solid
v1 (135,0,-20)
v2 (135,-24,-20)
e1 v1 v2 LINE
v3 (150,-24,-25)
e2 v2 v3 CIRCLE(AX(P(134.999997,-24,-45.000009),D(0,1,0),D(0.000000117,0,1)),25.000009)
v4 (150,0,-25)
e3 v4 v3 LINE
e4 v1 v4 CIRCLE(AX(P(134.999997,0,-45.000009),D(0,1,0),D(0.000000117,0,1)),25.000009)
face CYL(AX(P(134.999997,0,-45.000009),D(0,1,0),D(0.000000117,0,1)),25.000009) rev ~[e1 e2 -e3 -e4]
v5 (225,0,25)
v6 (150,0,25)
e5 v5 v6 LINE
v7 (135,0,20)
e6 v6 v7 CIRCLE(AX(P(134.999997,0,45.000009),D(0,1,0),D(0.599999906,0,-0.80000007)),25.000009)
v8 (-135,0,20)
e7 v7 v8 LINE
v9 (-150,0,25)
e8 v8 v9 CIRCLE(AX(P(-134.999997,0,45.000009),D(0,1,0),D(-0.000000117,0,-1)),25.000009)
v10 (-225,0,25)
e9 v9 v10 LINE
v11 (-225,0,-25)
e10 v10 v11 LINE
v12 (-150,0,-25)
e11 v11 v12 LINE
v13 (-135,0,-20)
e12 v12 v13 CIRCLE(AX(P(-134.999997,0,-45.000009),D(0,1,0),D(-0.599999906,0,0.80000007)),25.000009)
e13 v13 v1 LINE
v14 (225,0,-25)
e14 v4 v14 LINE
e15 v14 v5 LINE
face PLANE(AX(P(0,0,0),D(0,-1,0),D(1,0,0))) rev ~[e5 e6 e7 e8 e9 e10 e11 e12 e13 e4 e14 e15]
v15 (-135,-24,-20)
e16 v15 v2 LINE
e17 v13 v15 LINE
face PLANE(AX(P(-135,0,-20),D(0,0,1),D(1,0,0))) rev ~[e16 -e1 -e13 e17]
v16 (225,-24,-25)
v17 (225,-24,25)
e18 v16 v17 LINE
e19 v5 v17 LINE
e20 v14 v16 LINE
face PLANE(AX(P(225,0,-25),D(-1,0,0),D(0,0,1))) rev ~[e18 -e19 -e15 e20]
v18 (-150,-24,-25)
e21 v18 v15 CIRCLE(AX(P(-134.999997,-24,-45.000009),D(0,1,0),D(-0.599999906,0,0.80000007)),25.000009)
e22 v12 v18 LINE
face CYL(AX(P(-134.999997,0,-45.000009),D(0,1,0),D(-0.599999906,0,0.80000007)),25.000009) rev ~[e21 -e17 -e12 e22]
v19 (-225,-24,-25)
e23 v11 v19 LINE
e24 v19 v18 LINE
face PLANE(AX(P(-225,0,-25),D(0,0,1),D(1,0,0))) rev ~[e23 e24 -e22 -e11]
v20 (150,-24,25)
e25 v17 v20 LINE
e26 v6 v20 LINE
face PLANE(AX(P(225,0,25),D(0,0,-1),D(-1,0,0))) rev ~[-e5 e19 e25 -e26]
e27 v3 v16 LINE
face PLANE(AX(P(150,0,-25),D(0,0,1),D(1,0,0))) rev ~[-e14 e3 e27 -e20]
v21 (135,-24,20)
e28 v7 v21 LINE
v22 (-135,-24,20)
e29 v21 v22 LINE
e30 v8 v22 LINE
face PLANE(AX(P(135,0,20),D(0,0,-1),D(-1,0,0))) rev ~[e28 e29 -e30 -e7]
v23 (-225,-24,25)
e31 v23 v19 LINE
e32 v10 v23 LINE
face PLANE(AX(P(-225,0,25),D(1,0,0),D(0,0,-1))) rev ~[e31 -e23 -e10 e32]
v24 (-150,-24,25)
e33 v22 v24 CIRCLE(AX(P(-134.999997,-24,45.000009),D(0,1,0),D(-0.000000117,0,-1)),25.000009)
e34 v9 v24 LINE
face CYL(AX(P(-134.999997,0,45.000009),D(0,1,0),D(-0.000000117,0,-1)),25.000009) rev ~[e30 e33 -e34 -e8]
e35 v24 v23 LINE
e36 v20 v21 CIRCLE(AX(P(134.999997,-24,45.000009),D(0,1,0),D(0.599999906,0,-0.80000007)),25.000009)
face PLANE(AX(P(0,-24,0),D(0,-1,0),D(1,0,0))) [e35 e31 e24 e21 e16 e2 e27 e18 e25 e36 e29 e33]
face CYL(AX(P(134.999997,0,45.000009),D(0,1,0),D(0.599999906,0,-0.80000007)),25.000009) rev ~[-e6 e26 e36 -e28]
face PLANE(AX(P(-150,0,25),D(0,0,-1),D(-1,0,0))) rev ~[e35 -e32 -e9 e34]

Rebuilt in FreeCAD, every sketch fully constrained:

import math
import FreeCAD as App
import Part
import Sketcher
from FreeCAD import Vector
Q = App.Units.Quantity

doc = App.newDocument("Part")
body = doc.addObject("PartDesign::Body", "Body")

sketch1 = body.newObject("Sketcher::SketchObject", "Sketch")
sketch1.AttachmentSupport = (doc.getObject("XZ_Plane"), [""])
sketch1.MapMode = "FlatFace"
sketch1.addGeometry([
    Part.LineSegment(Vector(135, 20, 0), Vector(-135, 20, 0)),
    Part.ArcOfCircle(Part.Circle(Vector(-135, 45, 0), Vector(0, 0, 1), 25), math.radians(-127), math.radians(-90)),
    Part.LineSegment(Vector(-150, 25, 0), Vector(-225, 25, 0)),
    Part.LineSegment(Vector(-225, 25, 0), Vector(-225, -25, 0)),
    Part.LineSegment(Vector(-225, -25, 0), Vector(-150, -25, 0)),
    Part.ArcOfCircle(Part.Circle(Vector(-135, -45, 0), Vector(0, 0, 1), 25), math.radians(90), math.radians(127)),
    Part.LineSegment(Vector(-135, -20, 0), Vector(135, -20, 0)),
    Part.ArcOfCircle(Part.Circle(Vector(135, -45, 0), Vector(0, 0, 1), 25), math.radians(53), math.radians(90)),
    Part.LineSegment(Vector(150, -25, 0), Vector(225, -25, 0)),
    Part.LineSegment(Vector(225, -25, 0), Vector(225, 25, 0)),
    Part.LineSegment(Vector(225, 25, 0), Vector(150, 25, 0)),
    Part.ArcOfCircle(Part.Circle(Vector(135, 45, 0), Vector(0, 0, 1), 25), math.radians(-90), math.radians(-53)),
], False)
sketch1.addConstraint([
    Sketcher.Constraint("Tangent", 0, 2, 1, 2),
    Sketcher.Constraint("Coincident", 1, 1, 2, 1),
    Sketcher.Constraint("Coincident", 2, 2, 3, 1),
    Sketcher.Constraint("Coincident", 3, 2, 4, 1),
    Sketcher.Constraint("Coincident", 4, 2, 5, 2),
    Sketcher.Constraint("Tangent", 5, 1, 6, 1),
    Sketcher.Constraint("Tangent", 6, 2, 7, 2),
    Sketcher.Constraint("Coincident", 7, 1, 8, 1),
    Sketcher.Constraint("Coincident", 8, 2, 9, 1),
    Sketcher.Constraint("Coincident", 9, 2, 10, 1),
    Sketcher.Constraint("Coincident", 10, 2, 11, 2),
    Sketcher.Constraint("Tangent", 11, 1, 0, 1),
    Sketcher.Constraint("Horizontal", 0),
    Sketcher.Constraint("Horizontal", 2),
    Sketcher.Constraint("Vertical", 3),
    Sketcher.Constraint("Horizontal", 4),
    Sketcher.Constraint("Horizontal", 6),
    Sketcher.Constraint("Horizontal", 8),
    Sketcher.Constraint("Vertical", 9),
    Sketcher.Constraint("Horizontal", 10),
    Sketcher.Constraint("Equal", 1, 5),
    Sketcher.Constraint("Equal", 5, 7),
    Sketcher.Constraint("Equal", 7, 11),
    Sketcher.Constraint("Symmetric", 1, 3, 7, 3, -1, 1),
    Sketcher.Constraint("Symmetric", 2, 2, 8, 2, -1, 1),
    Sketcher.Constraint("Symmetric", 4, 2, 10, 2, -1, 1),
    Sketcher.Constraint("Symmetric", 4, 2, 7, 1, -2),
    Sketcher.Constraint("DistanceX", 0, 2, 0, 1, Q("270 mm")),
    Sketcher.Constraint("DistanceX", 2, 2, 2, 1, Q("75 mm")),
    Sketcher.Constraint("DistanceY", 3, 2, 3, 1, Q("50 mm")),
    Sketcher.Constraint("DistanceY", -1, 1, 0, 2, Q("20 mm")),
    Sketcher.Constraint("DistanceX", 1, 1, -1, 1, Q("150 mm")),
])
pad1 = body.newObject("PartDesign::Pad", "Pad")
pad1.Profile = sketch1
pad1.Length = 24

doc.recompute()
